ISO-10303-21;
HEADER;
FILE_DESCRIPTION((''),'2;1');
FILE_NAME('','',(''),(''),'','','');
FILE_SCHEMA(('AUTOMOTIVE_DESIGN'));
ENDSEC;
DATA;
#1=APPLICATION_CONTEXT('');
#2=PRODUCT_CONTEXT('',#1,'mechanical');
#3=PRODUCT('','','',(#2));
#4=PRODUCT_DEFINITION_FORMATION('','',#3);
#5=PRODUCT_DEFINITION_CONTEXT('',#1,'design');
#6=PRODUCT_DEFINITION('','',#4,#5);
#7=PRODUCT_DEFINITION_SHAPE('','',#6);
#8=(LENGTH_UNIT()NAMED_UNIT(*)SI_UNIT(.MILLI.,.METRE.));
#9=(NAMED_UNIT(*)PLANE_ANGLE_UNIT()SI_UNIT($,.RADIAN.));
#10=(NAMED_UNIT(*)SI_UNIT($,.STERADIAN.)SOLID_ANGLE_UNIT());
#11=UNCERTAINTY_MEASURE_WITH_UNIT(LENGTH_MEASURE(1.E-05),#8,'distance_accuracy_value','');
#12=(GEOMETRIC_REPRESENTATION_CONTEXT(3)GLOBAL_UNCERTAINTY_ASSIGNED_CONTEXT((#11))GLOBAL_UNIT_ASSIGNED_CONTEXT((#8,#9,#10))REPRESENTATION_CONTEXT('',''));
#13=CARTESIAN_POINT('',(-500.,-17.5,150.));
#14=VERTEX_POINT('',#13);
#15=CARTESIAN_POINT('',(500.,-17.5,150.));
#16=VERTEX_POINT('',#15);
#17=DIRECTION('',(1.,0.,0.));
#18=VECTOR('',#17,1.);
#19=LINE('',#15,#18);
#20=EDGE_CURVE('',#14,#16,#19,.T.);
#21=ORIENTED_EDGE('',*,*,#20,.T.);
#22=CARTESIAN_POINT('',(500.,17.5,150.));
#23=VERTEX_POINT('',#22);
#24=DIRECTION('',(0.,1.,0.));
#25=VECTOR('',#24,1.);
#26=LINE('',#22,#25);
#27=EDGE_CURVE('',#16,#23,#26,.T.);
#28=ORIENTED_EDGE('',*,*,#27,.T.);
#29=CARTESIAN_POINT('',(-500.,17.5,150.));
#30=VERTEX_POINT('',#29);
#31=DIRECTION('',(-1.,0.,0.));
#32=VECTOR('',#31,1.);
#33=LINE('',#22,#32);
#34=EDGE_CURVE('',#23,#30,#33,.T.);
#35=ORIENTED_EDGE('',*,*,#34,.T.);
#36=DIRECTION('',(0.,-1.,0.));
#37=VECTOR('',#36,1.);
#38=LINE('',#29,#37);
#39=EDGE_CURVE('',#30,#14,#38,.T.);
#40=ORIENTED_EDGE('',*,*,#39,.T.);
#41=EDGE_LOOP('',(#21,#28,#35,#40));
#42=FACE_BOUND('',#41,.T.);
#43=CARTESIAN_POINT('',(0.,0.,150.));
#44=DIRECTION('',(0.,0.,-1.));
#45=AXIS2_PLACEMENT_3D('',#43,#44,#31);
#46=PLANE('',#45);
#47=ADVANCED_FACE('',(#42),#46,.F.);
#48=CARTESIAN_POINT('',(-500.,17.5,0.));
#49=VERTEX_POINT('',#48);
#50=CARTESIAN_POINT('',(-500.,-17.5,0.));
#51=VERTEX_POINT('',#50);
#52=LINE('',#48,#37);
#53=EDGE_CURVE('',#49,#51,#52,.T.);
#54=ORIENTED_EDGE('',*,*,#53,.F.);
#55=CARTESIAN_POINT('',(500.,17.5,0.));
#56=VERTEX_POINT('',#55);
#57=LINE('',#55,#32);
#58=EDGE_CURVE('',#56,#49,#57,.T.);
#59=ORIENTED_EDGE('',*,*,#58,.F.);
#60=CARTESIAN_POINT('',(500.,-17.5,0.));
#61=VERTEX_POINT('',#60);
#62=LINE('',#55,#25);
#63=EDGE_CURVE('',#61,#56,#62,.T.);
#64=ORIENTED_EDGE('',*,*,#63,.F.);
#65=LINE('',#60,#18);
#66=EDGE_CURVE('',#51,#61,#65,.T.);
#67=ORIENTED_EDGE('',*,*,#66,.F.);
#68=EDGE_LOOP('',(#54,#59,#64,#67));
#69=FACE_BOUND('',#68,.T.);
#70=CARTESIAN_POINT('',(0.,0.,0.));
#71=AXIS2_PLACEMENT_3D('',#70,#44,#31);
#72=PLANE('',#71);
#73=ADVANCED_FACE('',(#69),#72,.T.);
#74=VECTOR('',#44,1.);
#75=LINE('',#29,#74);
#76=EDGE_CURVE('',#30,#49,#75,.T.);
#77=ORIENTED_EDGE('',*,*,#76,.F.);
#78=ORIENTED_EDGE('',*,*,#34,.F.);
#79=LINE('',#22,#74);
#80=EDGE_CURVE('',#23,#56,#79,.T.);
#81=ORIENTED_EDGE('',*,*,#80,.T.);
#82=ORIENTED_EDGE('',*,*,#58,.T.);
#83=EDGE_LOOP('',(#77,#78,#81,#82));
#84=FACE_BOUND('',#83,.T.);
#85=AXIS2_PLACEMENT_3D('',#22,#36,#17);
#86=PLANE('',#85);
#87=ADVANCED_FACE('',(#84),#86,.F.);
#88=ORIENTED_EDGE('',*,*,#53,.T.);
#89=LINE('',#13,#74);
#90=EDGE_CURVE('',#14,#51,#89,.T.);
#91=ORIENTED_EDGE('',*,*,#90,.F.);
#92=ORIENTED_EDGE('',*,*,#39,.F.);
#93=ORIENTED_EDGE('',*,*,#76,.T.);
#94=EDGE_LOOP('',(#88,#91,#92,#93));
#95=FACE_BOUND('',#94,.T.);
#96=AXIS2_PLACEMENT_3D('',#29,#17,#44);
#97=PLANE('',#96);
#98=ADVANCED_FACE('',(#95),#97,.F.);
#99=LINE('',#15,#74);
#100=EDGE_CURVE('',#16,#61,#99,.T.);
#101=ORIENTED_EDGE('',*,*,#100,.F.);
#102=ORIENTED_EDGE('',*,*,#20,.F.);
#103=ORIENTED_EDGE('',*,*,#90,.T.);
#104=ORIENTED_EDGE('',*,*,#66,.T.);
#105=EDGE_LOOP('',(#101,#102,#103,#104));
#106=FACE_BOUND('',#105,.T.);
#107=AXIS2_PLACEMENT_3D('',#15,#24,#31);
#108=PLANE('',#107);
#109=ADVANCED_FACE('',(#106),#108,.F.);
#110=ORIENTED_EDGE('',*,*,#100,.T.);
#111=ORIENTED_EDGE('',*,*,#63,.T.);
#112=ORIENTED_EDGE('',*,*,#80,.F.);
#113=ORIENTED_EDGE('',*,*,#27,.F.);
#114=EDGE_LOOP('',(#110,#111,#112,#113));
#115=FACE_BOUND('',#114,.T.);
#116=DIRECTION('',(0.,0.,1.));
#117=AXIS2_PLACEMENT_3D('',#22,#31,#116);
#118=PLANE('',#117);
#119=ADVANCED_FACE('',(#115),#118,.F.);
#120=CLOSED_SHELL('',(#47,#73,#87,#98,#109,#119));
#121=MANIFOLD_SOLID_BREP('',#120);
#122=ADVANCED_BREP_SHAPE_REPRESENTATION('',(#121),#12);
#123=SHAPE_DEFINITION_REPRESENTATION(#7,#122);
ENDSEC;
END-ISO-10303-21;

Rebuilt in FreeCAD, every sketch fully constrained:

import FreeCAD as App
import Part
import Sketcher

V = App.Vector


def add_polygon(sketch, points):
    """Adds a closed chain of lines whose ends are joined by coincident constraints."""
    first, n = sketch.GeometryCount, len(points)
    for a, b in zip(points, points[1:] + points[:1]):
        sketch.addGeometry(Part.LineSegment(App.Vector(*a, 0), App.Vector(*b, 0)), False)
    for i in range(n):
        sketch.addConstraint(Sketcher.Constraint("Coincident", first + i, 2, first + (i + 1) % n, 1))

doc = App.newDocument("Part")
params = doc.addObject("Spreadsheet::Sheet", "Params")
for row, (alias, value) in enumerate([
    ("sketch1_width", "1000 mm"),
    ("sketch1_height", "35 mm"),
    ("pad1_length", "150 mm"),
], start=1):
    params.set(f"A{row}", alias)
    params.set(f"B{row}", "=" + value)
    params.setAlias(f"B{row}", alias)

body = doc.addObject("PartDesign::Body", "Body")

sketch1 = body.newObject("Sketcher::SketchObject", "Sketch")
sketch1.AttachmentSupport = (doc.getObject("XY_Plane"), [""])
sketch1.MapMode = "FlatFace"
add_polygon(sketch1, [(-500, 17.5), (-500, -17.5), (500, -17.5), (500, 17.5)])
sketch1.addConstraint(Sketcher.Constraint("Vertical", 0))
sketch1.addConstraint(Sketcher.Constraint("Horizontal", 1))
sketch1.addConstraint(Sketcher.Constraint("Vertical", 2))
sketch1.addConstraint(Sketcher.Constraint("Horizontal", 3))
sketch1.addConstraint(Sketcher.Constraint("Symmetric", 0, 2, 2, 2, -1, 1))
sketch1.addConstraint(Sketcher.Constraint("DistanceX", 1, 1, 1, 2, 1000.0))
sketch1.addConstraint(Sketcher.Constraint("DistanceY", 0, 2, 0, 1, 35.0))
sketch1.setExpression("Constraints[9]", "Params.sketch1_width")
sketch1.setExpression("Constraints[10]", "Params.sketch1_height")
pad1 = body.newObject("PartDesign::Pad", "Pad")
pad1.Profile = sketch1
pad1.setExpression("Length", "Params.pad1_length")

doc.recompute()
